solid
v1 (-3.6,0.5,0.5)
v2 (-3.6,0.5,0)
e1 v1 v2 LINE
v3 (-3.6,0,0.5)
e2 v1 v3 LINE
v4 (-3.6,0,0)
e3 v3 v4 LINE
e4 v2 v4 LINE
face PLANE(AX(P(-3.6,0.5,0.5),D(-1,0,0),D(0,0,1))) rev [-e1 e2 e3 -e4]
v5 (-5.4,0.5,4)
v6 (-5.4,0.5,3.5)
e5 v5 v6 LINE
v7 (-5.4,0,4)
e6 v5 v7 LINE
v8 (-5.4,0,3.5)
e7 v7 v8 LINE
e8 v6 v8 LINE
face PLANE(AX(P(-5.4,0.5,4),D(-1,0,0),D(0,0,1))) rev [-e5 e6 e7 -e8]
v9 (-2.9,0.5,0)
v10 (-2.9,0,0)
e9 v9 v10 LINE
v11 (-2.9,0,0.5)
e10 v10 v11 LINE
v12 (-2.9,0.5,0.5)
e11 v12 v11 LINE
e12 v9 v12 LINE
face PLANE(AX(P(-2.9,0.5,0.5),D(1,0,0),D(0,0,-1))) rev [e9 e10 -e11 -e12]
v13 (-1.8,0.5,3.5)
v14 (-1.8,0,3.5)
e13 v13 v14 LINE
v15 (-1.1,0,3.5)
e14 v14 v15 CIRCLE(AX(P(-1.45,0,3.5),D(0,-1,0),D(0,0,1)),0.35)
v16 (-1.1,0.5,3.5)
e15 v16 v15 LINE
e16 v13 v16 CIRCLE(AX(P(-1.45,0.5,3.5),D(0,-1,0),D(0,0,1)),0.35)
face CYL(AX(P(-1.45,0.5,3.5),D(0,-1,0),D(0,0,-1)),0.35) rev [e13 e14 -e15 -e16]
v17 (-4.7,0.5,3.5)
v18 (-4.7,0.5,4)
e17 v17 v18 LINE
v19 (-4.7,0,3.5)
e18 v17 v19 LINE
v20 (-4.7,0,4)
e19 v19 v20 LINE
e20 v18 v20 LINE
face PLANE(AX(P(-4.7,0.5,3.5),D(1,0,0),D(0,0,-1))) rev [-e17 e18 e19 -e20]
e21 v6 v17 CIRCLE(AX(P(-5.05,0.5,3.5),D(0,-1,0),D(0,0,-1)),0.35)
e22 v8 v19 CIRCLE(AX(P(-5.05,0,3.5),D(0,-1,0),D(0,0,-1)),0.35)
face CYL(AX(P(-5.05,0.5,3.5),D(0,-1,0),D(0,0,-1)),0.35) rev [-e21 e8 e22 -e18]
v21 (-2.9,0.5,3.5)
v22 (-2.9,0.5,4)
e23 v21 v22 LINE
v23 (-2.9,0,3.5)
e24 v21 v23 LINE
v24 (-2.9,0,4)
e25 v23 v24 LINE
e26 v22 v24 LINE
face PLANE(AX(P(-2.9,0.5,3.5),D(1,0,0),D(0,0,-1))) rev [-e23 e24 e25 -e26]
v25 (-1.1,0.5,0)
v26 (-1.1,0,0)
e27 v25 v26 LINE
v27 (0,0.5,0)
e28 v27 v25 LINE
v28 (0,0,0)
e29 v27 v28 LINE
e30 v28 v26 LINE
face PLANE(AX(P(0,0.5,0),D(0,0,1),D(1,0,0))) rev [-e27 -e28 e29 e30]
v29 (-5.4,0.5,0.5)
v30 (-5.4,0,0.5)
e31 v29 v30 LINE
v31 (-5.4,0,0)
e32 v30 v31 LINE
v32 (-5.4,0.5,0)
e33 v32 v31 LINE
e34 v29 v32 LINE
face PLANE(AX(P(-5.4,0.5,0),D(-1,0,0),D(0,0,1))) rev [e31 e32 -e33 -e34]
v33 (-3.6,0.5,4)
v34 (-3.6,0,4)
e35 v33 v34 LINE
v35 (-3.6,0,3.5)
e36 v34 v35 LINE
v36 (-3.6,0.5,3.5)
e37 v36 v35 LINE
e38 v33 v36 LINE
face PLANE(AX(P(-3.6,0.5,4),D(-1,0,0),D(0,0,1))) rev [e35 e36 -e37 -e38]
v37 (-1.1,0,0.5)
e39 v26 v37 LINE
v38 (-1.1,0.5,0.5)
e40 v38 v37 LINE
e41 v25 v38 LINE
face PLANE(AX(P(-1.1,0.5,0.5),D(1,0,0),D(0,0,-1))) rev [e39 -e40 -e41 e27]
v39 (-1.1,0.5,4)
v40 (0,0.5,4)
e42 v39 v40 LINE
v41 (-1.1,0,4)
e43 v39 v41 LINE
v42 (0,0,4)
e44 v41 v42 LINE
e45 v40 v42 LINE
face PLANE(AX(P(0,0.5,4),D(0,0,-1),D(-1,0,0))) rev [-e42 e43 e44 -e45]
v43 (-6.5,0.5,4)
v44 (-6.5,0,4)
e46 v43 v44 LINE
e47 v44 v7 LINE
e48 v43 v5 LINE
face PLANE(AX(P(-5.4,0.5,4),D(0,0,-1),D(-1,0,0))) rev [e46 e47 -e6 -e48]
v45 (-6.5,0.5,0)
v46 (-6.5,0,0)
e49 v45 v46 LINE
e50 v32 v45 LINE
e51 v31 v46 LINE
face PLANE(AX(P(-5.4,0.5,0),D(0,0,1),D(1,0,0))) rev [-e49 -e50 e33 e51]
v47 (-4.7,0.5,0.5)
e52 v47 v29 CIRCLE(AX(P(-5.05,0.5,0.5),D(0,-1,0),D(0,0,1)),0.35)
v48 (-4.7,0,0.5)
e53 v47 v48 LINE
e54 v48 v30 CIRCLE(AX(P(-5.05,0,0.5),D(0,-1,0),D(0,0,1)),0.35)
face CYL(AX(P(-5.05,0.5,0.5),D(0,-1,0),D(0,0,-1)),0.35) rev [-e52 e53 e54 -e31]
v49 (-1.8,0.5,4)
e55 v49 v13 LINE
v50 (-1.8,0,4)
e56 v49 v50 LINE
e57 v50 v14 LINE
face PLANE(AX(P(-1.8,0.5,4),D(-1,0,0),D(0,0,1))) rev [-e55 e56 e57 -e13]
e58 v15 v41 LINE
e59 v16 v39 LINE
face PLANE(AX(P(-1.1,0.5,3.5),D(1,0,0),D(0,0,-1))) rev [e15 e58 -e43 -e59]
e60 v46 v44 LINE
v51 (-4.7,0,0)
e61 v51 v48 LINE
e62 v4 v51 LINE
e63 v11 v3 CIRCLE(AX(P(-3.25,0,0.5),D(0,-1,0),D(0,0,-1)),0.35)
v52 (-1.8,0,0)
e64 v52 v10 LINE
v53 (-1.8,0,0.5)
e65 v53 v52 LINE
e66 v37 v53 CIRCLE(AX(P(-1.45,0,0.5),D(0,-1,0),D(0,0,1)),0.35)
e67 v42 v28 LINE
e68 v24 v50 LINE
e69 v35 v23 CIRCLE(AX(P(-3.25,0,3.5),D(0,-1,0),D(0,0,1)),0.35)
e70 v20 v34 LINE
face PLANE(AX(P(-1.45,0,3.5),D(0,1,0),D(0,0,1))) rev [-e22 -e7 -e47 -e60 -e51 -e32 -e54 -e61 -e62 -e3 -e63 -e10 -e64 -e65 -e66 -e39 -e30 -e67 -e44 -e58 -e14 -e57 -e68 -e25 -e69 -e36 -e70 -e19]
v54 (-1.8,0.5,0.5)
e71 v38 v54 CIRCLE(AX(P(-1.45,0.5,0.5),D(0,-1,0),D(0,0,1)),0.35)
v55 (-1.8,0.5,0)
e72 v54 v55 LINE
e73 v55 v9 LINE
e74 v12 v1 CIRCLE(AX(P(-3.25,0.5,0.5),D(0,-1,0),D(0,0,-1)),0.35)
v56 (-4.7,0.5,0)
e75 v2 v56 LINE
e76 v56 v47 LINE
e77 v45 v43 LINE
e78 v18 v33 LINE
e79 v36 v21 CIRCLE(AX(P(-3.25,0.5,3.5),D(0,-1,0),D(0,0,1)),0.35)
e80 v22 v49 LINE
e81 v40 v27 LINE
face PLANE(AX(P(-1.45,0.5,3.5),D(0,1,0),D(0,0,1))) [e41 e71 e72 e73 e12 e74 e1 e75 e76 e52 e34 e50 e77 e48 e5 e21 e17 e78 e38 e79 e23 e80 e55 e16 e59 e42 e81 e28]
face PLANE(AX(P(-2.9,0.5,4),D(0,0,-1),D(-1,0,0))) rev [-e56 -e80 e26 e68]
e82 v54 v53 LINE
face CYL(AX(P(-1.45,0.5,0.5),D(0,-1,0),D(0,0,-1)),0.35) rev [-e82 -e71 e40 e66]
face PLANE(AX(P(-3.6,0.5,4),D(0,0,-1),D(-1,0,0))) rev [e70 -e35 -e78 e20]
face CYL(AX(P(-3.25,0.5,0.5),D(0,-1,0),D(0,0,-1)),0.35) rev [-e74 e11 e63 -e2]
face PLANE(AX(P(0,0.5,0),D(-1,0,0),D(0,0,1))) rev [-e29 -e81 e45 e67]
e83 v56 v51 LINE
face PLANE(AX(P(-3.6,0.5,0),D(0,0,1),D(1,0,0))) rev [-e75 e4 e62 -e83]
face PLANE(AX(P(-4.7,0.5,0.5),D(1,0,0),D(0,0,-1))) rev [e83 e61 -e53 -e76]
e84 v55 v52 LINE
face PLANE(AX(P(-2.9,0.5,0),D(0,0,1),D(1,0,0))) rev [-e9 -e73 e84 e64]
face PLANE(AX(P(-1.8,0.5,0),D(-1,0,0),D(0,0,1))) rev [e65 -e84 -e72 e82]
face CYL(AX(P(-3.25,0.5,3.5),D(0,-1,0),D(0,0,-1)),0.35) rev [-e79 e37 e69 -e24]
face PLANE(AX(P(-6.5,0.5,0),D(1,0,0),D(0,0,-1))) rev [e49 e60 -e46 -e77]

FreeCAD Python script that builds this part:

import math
import FreeCAD as App
import Part
import Sketcher
from FreeCAD import Vector

doc = App.newDocument("Part")
body = doc.addObject("PartDesign::Body", "Body")

sketch1 = body.newObject("Sketcher::SketchObject", "Sketch")
sketch1.AttachmentSupport = (doc.getObject("XZ_Plane"), [""])
sketch1.MapMode = "FlatFace"
sketch1.addGeometry(Part.LineSegment(Vector(-5.4, 0.5, 0), Vector(-5.4, 0, 0)), False)
sketch1.addGeometry(Part.LineSegment(Vector(-5.4, 0, 0), Vector(-6.5, 0, 0)), False)
sketch1.addGeometry(Part.LineSegment(Vector(-6.5, 0, 0), Vector(-6.5, 4, 0)), False)
sketch1.addGeometry(Part.LineSegment(Vector(-6.5, 4, 0), Vector(-5.4, 4, 0)), False)
sketch1.addGeometry(Part.LineSegment(Vector(-5.4, 4, 0), Vector(-5.4, 3.5, 0)), False)
sketch1.addGeometry(Part.ArcOfCircle(Part.Circle(Vector(-5.05, 3.5, 0), Vector(0, 0, 1), 0.35), math.radians(180), math.radians(360)), False)
sketch1.addGeometry(Part.LineSegment(Vector(-4.7, 3.5, 0), Vector(-4.7, 4, 0)), False)
sketch1.addGeometry(Part.LineSegment(Vector(-4.7, 4, 0), Vector(-3.6, 4, 0)), False)
sketch1.addGeometry(Part.LineSegment(Vector(-3.6, 4, 0), Vector(-3.6, 3.5, 0)), False)
sketch1.addGeometry(Part.ArcOfCircle(Part.Circle(Vector(-3.25, 3.5, 0), Vector(0, 0, 1), 0.35), math.radians(180), math.radians(360)), False)
sketch1.addGeometry(Part.LineSegment(Vector(-2.9, 3.5, 0), Vector(-2.9, 4, 0)), False)
sketch1.addGeometry(Part.LineSegment(Vector(-2.9, 4, 0), Vector(-1.8, 4, 0)), False)
sketch1.addGeometry(Part.LineSegment(Vector(-1.8, 4, 0), Vector(-1.8, 3.5, 0)), False)
sketch1.addGeometry(Part.ArcOfCircle(Part.Circle(Vector(-1.45, 3.5, 0), Vector(0, 0, 1), 0.35), math.radians(180), math.radians(360)), False)
sketch1.addGeometry(Part.LineSegment(Vector(-1.1, 3.5, 0), Vector(-1.1, 4, 0)), False)
sketch1.addGeometry(Part.LineSegment(Vector(-1.1, 4, 0), Vector(0, 4, 0)), False)
sketch1.addGeometry(Part.LineSegment(Vector(0, 4, 0), Vector(0, 0, 0)), False)
sketch1.addGeometry(Part.LineSegment(Vector(0, 0, 0), Vector(-1.1, 0, 0)), False)
sketch1.addGeometry(Part.LineSegment(Vector(-1.1, 0, 0), Vector(-1.1, 0.5, 0)), False)
sketch1.addGeometry(Part.ArcOfCircle(Part.Circle(Vector(-1.45, 0.5, 0), Vector(0, 0, 1), 0.35), math.radians(0), math.radians(180)), False)
sketch1.addGeometry(Part.LineSegment(Vector(-1.8, 0.5, 0), Vector(-1.8, 0, 0)), False)
sketch1.addGeometry(Part.LineSegment(Vector(-1.8, 0, 0), Vector(-2.9, 0, 0)), False)
sketch1.addGeometry(Part.LineSegment(Vector(-2.9, 0, 0), Vector(-2.9, 0.5, 0)), False)
sketch1.addGeometry(Part.ArcOfCircle(Part.Circle(Vector(-3.25, 0.5, 0), Vector(0, 0, 1), 0.35), math.radians(0), math.radians(180)), False)
sketch1.addGeometry(Part.LineSegment(Vector(-3.6, 0.5, 0), Vector(-3.6, 0, 0)), False)
sketch1.addGeometry(Part.LineSegment(Vector(-3.6, 0, 0), Vector(-4.7, 0, 0)), False)
sketch1.addGeometry(Part.LineSegment(Vector(-4.7, 0, 0), Vector(-4.7, 0.5, 0)), False)
sketch1.addGeometry(Part.ArcOfCircle(Part.Circle(Vector(-5.05, 0.5, 0), Vector(0, 0, 1), 0.35), math.radians(0), math.radians(180)), False)
sketch1.addConstraint(Sketcher.Constraint("Coincident", 0, 2, 1, 1))
sketch1.addConstraint(Sketcher.Constraint("Coincident", 1, 2, 2, 1))
sketch1.addConstraint(Sketcher.Constraint("Coincident", 2, 2, 3, 1))
sketch1.addConstraint(Sketcher.Constraint("Coincident", 3, 2, 4, 1))
sketch1.addConstraint(Sketcher.Constraint("Tangent", 4, 2, 5, 1))
sketch1.addConstraint(Sketcher.Constraint("Tangent", 5, 2, 6, 1))
sketch1.addConstraint(Sketcher.Constraint("Coincident", 6, 2, 7, 1))
sketch1.addConstraint(Sketcher.Constraint("Coincident", 7, 2, 8, 1))
sketch1.addConstraint(Sketcher.Constraint("Tangent", 8, 2, 9, 1))
sketch1.addConstraint(Sketcher.Constraint("Tangent", 9, 2, 10, 1))
sketch1.addConstraint(Sketcher.Constraint("Coincident", 10, 2, 11, 1))
sketch1.addConstraint(Sketcher.Constraint("Coincident", 11, 2, 12, 1))
sketch1.addConstraint(Sketcher.Constraint("Tangent", 12, 2, 13, 1))
sketch1.addConstraint(Sketcher.Constraint("Tangent", 13, 2, 14, 1))
sketch1.addConstraint(Sketcher.Constraint("Coincident", 14, 2, 15, 1))
sketch1.addConstraint(Sketcher.Constraint("Coincident", 15, 2, 16, 1))
sketch1.addConstraint(Sketcher.Constraint("Coincident", 16, 2, 17, 1))
sketch1.addConstraint(Sketcher.Constraint("Coincident", 17, 2, 18, 1))
sketch1.addConstraint(Sketcher.Constraint("Tangent", 18, 2, 19, 1))
sketch1.addConstraint(Sketcher.Constraint("Tangent", 19, 2, 20, 1))
sketch1.addConstraint(Sketcher.Constraint("Coincident", 20, 2, 21, 1))
sketch1.addConstraint(Sketcher.Constraint("Coincident", 21, 2, 22, 1))
sketch1.addConstraint(Sketcher.Constraint("Tangent", 22, 2, 23, 1))
sketch1.addConstraint(Sketcher.Constraint("Tangent", 23, 2, 24, 1))
sketch1.addConstraint(Sketcher.Constraint("Coincident", 24, 2, 25, 1))
sketch1.addConstraint(Sketcher.Constraint("Coincident", 25, 2, 26, 1))
sketch1.addConstraint(Sketcher.Constraint("Tangent", 26, 2, 27, 1))
sketch1.addConstraint(Sketcher.Constraint("Tangent", 27, 2, 0, 1))
sketch1.addConstraint(Sketcher.Constraint("Vertical", 0))
sketch1.addConstraint(Sketcher.Constraint("Horizontal", 1))
sketch1.addConstraint(Sketcher.Constraint("Vertical", 2))
sketch1.addConstraint(Sketcher.Constraint("Horizontal", 3))
sketch1.addConstraint(Sketcher.Constraint("Vertical", 4))
sketch1.addConstraint(Sketcher.Constraint("Vertical", 6))
sketch1.addConstraint(Sketcher.Constraint("Horizontal", 7))
sketch1.addConstraint(Sketcher.Constraint("Vertical", 8))
sketch1.addConstraint(Sketcher.Constraint("Vertical", 10))
sketch1.addConstraint(Sketcher.Constraint("Horizontal", 11))
sketch1.addConstraint(Sketcher.Constraint("Vertical", 12))
sketch1.addConstraint(Sketcher.Constraint("Vertical", 14))
sketch1.addConstraint(Sketcher.Constraint("Horizontal", 15))
sketch1.addConstraint(Sketcher.Constraint("Vertical", 16))
sketch1.addConstraint(Sketcher.Constraint("Horizontal", 17))
sketch1.addConstraint(Sketcher.Constraint("Vertical", 18))
sketch1.addConstraint(Sketcher.Constraint("Vertical", 20))
sketch1.addConstraint(Sketcher.Constraint("Horizontal", 21))
sketch1.addConstraint(Sketcher.Constraint("Vertical", 22))
sketch1.addConstraint(Sketcher.Constraint("Vertical", 24))
sketch1.addConstraint(Sketcher.Constraint("Horizontal", 25))
sketch1.addConstraint(Sketcher.Constraint("Vertical", 26))
sketch1.addConstraint(Sketcher.Constraint("Coincident", 16, 2, -1, 1))
sketch1.addConstraint(Sketcher.Constraint("Equal", 5, 9))
sketch1.addConstraint(Sketcher.Constraint("Equal", 9, 13))
sketch1.addConstraint(Sketcher.Constraint("Equal", 13, 19))
sketch1.addConstraint(Sketcher.Constraint("Equal", 19, 23))
sketch1.addConstraint(Sketcher.Constraint("Equal", 23, 27))
sketch1.addConstraint(Sketcher.Constraint("PointOnObject", 0, 2, -1))
sketch1.addConstraint(Sketcher.Constraint("PointOnObject", 20, 2, -1))
sketch1.addConstraint(Sketcher.Constraint("PointOnObject", 24, 2, -1))
sketch1.addConstraint(Sketcher.Constraint("Horizontal", 5, 3, 9, 3))
sketch1.addConstraint(Sketcher.Constraint("Horizontal", 9, 3, 13, 3))
sketch1.addConstraint(Sketcher.Constraint("Horizontal", 19, 3, 23, 3))
sketch1.addConstraint(Sketcher.Constraint("Horizontal", 23, 3, 27, 3))
sketch1.addConstraint(Sketcher.Constraint("Horizontal", 3, 2, 6, 2))
sketch1.addConstraint(Sketcher.Constraint("Horizontal", 7, 2, 10, 2))
sketch1.addConstraint(Sketcher.Constraint("Horizontal", 11, 2, 14, 2))
sketch1.addConstraint(Sketcher.Constraint("Vertical", 13, 3, 19, 3))
sketch1.addConstraint(Sketcher.Constraint("Vertical", 9, 3, 23, 3))
sketch1.addConstraint(Sketcher.Constraint("Vertical", 5, 3, 27, 3))
sketch1.addConstraint(Sketcher.Constraint("Equal", 3, 7))
sketch1.addConstraint(Sketcher.Constraint("Equal", 7, 11))
sketch1.addConstraint(Sketcher.Constraint("Equal", 11, 15))
sketch1.addConstraint(Sketcher.Constraint("Equal", 0, 4))
sketch1.addConstraint(Sketcher.Constraint("DistanceY", 2, 1, 2, 2, 4.0))
sketch1.addConstraint(Sketcher.Constraint("Radius", 5, 0.35))
sketch1.addConstraint(Sketcher.Constraint("DistanceX", 1, 2, 1, 1, 1.1))
sketch1.addConstraint(Sketcher.Constraint("DistanceY", 0, 2, 0, 1, 0.5))
pad1 = body.newObject("PartDesign::Pad", "Pad")
pad1.Profile = sketch1
pad1.Length = 0.5
pad1.Reversed = True

doc.recompute()
